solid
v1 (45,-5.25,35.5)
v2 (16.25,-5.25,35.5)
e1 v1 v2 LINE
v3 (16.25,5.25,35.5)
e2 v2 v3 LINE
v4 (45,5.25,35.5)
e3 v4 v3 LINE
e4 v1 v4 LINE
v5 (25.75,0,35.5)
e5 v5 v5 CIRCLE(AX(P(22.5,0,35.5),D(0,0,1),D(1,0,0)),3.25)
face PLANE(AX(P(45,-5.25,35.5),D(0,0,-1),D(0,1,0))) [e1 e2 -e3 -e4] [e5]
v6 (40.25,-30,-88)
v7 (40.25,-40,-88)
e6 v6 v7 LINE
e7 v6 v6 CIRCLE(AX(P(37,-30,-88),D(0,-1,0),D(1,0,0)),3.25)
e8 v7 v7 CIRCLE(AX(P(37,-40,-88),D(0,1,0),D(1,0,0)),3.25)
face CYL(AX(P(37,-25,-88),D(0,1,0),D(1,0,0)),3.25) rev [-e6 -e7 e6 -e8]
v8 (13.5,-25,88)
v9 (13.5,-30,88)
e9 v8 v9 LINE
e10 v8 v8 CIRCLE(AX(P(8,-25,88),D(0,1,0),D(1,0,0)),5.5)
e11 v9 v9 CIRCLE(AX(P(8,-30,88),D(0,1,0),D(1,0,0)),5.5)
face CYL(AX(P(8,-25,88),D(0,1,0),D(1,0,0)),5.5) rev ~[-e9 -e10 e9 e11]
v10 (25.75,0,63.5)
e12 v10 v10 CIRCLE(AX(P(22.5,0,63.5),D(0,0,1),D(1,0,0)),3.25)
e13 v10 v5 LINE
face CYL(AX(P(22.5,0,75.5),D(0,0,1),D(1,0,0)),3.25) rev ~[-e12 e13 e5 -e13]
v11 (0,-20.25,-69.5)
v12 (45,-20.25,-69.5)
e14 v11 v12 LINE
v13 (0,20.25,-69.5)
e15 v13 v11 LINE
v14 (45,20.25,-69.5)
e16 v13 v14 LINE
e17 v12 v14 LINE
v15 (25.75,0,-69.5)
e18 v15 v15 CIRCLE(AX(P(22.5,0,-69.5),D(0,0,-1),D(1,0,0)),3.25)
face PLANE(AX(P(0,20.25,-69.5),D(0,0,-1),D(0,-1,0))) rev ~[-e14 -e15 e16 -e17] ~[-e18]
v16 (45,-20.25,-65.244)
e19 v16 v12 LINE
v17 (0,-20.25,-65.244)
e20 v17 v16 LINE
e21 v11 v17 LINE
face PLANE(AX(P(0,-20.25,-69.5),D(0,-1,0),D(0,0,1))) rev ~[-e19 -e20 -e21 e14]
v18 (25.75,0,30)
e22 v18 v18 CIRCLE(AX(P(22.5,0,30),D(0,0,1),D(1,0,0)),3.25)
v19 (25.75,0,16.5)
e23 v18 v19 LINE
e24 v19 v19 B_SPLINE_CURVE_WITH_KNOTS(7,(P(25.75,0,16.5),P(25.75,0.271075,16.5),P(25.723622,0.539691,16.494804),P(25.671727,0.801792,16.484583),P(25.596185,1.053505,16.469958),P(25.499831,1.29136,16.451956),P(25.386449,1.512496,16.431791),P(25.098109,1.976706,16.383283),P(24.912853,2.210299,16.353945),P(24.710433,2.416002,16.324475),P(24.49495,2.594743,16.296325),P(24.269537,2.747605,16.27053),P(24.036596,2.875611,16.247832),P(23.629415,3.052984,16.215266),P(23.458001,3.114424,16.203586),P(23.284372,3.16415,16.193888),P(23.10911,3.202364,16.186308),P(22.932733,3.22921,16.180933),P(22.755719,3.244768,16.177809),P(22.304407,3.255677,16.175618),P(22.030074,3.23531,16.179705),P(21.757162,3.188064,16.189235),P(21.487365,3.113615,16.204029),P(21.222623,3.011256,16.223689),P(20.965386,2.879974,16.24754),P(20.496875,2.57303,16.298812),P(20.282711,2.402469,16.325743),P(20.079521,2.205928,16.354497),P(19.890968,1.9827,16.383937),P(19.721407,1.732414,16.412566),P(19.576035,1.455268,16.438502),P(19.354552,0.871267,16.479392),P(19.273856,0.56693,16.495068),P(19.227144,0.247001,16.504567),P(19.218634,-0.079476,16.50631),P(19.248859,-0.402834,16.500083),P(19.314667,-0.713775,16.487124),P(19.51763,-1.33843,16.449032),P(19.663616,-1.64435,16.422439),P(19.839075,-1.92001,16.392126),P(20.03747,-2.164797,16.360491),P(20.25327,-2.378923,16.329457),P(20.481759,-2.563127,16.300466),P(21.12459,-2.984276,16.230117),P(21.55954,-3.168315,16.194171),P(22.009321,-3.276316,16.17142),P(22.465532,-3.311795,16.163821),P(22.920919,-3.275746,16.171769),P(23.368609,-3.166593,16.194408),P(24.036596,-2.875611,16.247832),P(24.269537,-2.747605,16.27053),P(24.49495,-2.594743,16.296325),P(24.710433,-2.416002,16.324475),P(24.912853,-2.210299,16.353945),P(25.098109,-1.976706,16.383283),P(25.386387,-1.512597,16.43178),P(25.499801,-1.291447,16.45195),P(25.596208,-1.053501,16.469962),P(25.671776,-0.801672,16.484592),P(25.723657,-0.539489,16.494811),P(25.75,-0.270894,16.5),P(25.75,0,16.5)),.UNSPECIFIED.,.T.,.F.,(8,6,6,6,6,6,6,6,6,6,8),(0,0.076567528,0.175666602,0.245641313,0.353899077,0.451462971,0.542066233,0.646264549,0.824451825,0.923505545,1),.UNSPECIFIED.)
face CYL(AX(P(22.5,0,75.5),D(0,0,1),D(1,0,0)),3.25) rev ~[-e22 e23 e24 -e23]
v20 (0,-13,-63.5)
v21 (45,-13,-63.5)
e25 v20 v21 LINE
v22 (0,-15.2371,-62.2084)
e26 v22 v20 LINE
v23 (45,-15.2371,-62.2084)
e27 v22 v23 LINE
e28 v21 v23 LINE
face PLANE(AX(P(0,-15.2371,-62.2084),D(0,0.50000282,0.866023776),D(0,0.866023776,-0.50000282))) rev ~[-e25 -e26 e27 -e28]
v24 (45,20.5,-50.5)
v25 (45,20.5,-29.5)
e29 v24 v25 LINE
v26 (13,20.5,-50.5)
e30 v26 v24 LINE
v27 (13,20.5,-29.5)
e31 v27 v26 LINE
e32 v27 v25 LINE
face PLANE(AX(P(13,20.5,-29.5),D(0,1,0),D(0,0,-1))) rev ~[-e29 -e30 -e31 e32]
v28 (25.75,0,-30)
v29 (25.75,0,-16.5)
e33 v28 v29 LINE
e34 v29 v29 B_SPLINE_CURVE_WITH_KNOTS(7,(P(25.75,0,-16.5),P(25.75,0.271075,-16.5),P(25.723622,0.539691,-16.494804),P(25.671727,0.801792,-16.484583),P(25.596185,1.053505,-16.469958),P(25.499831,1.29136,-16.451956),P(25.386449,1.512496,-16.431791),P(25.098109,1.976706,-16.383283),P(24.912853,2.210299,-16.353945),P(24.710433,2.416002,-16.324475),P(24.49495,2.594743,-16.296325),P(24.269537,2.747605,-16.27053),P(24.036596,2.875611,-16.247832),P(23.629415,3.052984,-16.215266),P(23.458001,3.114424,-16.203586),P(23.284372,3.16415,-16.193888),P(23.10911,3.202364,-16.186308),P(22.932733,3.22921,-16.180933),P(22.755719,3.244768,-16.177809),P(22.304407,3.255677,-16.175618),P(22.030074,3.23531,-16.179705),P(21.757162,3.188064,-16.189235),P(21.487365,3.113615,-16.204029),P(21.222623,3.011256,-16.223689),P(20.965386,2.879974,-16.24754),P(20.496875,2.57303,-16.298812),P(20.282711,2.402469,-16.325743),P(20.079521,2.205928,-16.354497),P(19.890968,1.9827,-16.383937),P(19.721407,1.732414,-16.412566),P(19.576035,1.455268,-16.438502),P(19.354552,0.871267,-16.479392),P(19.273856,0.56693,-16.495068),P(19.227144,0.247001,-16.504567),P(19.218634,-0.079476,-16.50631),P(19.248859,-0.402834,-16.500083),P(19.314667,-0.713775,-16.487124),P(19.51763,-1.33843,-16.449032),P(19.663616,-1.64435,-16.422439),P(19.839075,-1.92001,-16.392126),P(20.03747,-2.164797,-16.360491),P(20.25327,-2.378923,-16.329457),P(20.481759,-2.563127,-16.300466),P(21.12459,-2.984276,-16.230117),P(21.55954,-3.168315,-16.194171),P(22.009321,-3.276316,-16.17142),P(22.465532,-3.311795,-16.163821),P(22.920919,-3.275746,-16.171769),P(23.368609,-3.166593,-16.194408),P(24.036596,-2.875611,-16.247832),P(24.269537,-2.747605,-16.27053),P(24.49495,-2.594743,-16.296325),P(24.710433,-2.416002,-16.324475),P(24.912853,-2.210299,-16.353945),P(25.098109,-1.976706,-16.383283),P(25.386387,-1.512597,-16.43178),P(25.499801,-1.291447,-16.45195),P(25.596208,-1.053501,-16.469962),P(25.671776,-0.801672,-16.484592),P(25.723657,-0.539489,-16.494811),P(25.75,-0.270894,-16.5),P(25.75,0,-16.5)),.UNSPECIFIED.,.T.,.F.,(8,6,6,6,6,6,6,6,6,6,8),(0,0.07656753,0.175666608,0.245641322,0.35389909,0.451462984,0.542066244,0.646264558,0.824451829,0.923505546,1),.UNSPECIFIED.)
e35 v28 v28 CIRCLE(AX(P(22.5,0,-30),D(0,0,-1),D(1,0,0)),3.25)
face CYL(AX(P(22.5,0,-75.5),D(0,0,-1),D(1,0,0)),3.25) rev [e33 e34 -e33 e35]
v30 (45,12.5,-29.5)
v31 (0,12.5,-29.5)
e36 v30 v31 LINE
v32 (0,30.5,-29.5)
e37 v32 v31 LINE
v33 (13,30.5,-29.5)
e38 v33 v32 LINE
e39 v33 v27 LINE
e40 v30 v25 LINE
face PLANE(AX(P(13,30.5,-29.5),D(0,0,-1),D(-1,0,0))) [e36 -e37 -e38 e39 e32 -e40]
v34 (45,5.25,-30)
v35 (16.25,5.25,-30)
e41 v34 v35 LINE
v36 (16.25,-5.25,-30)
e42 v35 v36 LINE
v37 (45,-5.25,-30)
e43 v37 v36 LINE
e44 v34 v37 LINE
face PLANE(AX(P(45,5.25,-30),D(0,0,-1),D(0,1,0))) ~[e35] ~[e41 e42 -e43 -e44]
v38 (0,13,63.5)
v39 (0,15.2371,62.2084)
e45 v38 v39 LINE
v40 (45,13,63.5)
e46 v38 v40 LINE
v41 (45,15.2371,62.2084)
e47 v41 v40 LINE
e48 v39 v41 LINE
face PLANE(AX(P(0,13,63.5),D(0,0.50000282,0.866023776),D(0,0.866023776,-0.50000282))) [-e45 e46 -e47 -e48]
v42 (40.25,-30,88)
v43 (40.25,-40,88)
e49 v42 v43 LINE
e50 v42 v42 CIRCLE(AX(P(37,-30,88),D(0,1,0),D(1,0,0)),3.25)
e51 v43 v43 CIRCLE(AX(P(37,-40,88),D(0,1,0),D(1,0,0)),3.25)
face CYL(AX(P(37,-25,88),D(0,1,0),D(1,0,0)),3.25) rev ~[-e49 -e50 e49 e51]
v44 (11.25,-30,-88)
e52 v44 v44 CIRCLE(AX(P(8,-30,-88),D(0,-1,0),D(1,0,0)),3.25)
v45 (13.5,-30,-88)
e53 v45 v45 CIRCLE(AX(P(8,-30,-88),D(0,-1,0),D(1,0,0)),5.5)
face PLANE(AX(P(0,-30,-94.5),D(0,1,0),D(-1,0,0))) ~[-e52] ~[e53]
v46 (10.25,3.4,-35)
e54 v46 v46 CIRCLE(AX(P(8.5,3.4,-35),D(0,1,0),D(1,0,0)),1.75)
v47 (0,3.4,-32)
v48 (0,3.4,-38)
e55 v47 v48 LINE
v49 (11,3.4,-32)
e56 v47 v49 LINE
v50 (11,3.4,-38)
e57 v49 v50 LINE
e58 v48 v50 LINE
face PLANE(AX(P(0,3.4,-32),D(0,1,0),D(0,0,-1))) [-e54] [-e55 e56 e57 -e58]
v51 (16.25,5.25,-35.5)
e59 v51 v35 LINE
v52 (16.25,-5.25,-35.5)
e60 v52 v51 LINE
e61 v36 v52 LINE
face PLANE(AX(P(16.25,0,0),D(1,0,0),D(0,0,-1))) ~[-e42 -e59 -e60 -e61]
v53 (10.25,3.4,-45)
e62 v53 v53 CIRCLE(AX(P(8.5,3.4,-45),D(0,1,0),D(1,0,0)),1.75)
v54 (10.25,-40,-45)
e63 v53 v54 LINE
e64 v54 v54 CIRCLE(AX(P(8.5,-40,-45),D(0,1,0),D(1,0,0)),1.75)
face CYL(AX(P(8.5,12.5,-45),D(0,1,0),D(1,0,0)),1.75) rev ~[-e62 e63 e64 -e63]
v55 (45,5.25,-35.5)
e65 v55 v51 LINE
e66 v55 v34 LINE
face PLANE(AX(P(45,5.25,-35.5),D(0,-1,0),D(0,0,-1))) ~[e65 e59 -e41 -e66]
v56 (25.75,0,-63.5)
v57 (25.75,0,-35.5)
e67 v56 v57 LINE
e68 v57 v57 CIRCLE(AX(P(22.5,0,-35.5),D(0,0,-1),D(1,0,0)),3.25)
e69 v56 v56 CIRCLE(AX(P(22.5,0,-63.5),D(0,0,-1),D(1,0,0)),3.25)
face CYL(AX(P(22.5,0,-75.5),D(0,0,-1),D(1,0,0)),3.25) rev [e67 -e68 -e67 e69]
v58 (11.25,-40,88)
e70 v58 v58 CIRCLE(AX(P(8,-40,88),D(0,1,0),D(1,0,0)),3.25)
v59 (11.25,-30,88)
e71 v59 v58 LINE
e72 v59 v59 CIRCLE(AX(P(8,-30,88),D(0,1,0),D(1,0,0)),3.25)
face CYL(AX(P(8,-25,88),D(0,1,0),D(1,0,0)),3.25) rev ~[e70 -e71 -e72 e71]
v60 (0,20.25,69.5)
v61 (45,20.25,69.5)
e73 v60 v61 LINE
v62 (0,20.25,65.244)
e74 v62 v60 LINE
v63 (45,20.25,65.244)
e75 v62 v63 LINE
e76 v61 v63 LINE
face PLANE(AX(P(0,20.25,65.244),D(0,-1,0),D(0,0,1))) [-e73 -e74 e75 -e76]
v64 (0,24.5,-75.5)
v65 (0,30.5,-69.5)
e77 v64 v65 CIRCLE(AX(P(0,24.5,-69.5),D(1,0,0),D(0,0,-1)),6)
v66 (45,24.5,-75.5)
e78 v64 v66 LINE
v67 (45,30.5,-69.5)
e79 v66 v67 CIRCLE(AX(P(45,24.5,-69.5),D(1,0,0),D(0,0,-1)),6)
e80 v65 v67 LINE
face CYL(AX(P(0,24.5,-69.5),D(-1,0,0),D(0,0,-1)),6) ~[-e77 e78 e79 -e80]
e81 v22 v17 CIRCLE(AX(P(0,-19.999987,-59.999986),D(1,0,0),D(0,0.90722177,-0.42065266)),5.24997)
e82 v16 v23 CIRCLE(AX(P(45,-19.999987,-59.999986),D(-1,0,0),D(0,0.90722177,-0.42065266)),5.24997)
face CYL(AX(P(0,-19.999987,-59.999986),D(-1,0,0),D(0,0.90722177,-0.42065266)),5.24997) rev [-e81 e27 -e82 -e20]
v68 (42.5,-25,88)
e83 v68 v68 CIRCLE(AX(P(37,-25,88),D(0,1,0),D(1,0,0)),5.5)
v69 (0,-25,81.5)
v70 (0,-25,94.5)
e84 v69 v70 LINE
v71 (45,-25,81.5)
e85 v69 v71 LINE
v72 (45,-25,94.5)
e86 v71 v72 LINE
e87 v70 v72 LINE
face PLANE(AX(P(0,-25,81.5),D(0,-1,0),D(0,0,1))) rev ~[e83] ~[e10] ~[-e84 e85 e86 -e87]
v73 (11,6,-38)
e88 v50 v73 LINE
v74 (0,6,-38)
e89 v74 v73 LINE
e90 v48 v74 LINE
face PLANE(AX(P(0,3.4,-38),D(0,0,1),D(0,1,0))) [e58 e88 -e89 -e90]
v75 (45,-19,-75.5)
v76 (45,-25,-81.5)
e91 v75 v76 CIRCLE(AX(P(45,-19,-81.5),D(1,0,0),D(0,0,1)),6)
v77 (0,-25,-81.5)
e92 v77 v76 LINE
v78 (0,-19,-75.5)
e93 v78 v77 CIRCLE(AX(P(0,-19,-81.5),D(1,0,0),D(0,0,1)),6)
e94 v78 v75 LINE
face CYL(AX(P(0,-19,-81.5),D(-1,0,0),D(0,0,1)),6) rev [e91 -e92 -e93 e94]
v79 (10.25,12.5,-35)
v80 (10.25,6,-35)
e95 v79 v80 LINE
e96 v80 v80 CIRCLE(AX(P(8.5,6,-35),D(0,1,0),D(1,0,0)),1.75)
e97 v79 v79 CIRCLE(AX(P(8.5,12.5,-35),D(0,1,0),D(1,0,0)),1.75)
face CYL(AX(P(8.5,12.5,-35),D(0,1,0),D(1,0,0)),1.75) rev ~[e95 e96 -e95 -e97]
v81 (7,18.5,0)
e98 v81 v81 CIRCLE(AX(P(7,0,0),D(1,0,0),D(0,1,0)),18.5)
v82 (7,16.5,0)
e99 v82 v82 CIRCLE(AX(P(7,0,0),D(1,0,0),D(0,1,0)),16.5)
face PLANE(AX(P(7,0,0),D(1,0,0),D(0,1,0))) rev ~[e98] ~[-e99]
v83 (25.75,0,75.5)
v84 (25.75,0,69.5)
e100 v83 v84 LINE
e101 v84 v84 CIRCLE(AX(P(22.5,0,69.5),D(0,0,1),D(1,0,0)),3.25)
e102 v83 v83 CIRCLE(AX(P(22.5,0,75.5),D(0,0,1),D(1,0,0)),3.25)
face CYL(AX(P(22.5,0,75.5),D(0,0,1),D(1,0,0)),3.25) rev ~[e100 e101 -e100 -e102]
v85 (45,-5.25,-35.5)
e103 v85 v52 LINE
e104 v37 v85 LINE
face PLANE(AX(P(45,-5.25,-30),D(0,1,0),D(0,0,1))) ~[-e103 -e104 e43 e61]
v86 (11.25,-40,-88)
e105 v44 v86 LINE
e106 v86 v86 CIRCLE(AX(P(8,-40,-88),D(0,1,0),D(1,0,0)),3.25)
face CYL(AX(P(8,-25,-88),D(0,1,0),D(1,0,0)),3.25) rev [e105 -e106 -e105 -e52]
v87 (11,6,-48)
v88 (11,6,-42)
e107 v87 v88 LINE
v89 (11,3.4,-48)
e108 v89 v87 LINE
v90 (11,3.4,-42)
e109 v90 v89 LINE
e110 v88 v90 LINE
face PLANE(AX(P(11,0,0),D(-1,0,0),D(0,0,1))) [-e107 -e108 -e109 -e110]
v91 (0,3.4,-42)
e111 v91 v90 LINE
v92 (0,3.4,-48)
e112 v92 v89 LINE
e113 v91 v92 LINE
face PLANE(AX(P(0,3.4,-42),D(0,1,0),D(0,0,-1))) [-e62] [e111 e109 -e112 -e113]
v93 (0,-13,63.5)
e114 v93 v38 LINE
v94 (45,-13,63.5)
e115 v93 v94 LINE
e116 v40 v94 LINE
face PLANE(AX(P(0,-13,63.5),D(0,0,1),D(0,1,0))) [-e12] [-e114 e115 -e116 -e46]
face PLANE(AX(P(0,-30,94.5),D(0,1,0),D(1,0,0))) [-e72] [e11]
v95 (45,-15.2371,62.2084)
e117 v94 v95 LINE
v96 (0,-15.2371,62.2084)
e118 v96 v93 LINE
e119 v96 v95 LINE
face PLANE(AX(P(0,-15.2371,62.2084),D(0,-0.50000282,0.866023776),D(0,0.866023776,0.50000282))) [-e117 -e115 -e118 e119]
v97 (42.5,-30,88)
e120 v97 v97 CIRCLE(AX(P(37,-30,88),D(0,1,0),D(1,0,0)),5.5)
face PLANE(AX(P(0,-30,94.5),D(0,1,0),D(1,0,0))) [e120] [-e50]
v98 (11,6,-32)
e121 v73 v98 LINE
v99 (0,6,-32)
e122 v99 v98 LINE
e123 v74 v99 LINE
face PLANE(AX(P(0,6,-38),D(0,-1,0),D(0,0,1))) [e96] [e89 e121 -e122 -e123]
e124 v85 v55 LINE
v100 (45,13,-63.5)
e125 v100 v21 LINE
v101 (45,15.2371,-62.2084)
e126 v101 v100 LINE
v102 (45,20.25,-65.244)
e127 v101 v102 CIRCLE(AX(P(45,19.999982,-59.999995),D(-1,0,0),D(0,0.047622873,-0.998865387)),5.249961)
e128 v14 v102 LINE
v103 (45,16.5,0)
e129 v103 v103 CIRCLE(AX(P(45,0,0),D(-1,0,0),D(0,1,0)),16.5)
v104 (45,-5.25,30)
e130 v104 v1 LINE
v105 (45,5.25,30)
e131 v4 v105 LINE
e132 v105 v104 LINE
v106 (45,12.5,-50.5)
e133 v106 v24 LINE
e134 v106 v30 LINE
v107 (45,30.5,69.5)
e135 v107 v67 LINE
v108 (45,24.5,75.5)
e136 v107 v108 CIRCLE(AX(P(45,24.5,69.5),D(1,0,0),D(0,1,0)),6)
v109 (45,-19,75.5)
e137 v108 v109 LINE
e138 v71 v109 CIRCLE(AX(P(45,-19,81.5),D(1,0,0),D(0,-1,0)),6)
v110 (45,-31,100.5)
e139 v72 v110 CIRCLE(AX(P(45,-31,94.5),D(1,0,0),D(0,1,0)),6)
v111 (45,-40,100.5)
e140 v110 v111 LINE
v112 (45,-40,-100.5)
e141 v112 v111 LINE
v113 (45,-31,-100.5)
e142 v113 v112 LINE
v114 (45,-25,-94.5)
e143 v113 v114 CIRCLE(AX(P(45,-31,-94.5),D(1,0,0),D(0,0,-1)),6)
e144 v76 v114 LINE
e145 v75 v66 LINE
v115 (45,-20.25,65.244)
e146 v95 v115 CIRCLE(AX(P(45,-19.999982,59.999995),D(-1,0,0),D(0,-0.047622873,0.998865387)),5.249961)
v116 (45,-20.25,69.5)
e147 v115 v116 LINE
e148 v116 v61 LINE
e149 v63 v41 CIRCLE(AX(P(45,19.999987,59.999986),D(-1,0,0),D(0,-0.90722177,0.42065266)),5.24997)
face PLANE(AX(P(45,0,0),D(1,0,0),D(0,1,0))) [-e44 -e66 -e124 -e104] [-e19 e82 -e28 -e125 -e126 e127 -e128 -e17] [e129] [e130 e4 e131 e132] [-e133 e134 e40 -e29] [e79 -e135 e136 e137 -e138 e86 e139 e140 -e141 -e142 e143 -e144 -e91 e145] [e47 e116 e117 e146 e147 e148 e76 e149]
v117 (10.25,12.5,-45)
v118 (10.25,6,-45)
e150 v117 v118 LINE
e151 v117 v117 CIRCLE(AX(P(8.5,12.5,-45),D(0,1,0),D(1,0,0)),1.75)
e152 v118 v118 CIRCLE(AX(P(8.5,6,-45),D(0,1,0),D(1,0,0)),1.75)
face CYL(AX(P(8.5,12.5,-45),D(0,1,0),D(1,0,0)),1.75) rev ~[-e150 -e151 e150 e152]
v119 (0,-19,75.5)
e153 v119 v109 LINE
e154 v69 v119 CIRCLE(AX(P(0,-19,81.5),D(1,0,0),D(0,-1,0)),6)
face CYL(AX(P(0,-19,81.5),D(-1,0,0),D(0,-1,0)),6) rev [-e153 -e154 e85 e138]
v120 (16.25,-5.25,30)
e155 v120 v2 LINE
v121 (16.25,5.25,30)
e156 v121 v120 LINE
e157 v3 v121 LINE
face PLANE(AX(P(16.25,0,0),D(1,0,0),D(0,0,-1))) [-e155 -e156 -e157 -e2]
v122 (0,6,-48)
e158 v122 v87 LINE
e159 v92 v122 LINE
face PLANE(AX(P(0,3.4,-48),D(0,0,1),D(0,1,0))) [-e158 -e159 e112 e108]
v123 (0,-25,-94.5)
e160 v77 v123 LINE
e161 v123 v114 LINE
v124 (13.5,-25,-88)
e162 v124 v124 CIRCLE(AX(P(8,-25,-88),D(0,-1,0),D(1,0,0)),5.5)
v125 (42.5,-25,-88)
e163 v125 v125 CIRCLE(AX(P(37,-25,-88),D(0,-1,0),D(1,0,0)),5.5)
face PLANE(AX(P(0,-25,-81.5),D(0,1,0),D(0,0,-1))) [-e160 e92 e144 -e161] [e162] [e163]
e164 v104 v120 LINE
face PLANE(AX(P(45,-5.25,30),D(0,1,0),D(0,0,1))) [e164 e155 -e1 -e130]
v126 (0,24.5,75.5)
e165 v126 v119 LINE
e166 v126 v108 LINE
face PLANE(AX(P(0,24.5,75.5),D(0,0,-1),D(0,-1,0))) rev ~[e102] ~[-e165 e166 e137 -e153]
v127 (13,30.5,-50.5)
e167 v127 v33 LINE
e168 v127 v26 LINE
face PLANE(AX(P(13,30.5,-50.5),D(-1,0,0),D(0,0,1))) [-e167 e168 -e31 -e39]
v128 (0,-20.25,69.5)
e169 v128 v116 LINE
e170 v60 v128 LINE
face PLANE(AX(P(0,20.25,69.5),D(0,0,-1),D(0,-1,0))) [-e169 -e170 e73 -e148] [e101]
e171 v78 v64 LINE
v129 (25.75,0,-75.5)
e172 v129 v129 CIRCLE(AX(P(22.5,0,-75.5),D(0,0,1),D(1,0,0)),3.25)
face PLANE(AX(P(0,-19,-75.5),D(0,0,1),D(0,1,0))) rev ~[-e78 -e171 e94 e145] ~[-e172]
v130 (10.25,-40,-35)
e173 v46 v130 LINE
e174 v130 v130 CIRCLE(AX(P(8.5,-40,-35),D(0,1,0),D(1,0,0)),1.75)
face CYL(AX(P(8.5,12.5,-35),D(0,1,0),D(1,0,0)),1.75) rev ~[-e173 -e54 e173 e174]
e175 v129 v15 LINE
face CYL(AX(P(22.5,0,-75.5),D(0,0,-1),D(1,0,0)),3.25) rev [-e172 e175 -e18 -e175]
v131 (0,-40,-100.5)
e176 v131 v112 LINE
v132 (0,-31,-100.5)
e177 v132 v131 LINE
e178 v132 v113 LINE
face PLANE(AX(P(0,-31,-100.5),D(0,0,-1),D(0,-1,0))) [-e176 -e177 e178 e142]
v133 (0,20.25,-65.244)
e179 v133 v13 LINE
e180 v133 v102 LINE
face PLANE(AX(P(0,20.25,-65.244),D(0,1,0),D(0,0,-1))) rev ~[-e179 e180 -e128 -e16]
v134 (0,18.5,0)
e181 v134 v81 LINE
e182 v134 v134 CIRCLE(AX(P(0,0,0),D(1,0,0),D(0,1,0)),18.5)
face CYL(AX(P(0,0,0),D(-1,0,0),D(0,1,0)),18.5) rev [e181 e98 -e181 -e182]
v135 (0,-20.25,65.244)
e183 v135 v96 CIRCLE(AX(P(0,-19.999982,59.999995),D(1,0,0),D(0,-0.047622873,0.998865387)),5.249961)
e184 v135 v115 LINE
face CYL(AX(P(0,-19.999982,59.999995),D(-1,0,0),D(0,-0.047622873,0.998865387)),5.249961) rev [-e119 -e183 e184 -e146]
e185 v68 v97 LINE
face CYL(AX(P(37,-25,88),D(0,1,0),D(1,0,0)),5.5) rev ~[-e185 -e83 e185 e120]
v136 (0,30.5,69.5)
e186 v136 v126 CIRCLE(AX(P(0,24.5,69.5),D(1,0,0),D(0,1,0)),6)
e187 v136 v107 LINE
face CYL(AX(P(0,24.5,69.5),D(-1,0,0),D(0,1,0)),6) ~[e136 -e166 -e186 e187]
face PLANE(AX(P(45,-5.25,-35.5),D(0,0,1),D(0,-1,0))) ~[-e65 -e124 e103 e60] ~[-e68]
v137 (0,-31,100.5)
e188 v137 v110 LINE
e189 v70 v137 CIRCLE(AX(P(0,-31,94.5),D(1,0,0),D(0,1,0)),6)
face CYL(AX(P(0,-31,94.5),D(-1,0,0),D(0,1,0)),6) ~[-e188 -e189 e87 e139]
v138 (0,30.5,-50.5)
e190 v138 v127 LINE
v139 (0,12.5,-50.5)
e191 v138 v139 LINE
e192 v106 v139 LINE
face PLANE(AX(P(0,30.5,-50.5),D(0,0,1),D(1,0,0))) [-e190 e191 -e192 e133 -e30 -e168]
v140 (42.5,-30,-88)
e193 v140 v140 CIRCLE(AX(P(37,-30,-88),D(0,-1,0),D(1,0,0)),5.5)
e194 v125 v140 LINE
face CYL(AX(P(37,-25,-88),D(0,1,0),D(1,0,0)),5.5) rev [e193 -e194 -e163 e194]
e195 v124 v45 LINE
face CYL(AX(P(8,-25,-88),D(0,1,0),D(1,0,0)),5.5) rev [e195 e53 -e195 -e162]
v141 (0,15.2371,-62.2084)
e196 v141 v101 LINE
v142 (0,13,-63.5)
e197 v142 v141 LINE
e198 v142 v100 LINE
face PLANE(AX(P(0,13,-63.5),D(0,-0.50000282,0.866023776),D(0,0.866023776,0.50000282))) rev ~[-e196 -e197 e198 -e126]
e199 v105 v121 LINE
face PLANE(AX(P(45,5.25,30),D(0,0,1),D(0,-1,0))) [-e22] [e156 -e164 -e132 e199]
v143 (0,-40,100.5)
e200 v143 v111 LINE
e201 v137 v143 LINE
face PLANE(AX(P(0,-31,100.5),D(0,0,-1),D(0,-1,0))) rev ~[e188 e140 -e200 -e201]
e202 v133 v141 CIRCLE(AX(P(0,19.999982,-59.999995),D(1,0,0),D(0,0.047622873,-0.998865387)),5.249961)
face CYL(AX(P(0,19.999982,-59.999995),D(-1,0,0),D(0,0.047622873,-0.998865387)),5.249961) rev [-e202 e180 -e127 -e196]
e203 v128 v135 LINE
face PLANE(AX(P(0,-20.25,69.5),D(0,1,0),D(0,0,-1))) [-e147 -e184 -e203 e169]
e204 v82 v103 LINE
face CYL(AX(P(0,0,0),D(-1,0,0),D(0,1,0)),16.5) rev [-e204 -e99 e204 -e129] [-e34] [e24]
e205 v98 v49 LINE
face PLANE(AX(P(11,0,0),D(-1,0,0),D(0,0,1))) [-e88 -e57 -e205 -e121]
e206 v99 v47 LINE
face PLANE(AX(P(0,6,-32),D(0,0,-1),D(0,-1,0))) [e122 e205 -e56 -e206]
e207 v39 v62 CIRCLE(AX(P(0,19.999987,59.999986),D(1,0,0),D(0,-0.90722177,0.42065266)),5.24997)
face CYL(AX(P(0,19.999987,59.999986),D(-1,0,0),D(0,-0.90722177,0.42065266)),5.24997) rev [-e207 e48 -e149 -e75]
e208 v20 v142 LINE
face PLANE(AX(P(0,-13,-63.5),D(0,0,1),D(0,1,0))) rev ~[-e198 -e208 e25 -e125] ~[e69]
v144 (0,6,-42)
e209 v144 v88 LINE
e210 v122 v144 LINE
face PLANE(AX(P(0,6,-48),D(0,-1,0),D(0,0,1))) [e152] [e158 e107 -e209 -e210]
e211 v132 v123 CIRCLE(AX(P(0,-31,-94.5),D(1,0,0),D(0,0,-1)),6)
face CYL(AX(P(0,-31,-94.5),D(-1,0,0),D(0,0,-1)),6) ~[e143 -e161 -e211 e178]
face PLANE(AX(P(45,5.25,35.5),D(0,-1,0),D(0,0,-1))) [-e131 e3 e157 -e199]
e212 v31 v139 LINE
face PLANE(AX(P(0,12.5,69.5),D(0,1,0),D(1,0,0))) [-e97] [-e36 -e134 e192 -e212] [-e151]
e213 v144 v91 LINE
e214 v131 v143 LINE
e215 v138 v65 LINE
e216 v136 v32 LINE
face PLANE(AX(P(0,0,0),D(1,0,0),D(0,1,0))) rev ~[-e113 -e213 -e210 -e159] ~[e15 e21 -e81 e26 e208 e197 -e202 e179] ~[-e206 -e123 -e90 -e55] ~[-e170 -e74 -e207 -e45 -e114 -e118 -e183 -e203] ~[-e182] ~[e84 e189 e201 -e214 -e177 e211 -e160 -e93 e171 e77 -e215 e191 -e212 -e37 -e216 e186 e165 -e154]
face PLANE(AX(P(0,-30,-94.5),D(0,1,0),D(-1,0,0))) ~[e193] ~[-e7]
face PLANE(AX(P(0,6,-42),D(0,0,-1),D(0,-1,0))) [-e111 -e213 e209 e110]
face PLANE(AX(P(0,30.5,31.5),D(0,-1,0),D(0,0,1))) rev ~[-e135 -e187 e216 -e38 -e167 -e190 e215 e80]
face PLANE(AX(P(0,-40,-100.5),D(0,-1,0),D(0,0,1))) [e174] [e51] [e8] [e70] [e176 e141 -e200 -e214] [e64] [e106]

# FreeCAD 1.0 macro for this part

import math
import FreeCAD as App
import Part
import Sketcher
Q = App.Units.Quantity

doc = App.newDocument("Part")
body = doc.addObject("PartDesign::Body", "Body")

# Sketch on YZ plane
sketch1 = body.newObject("Sketcher::SketchObject", "Sketch")
sketch1.AttachmentSupport = (doc.getObject("YZ_Plane"), [""])
sketch1.MapMode = "FlatFace"
sketch1.addGeometry(Part.ArcOfCircle(Part.Circle(App.Vector(24, 70, 0), App.Vector(0, 0, 1), 6), math.radians(0), math.radians(90)), False)
sketch1.addGeometry(Part.LineSegment(App.Vector(24, 76, 0), App.Vector(-19, 76, 0)), False)
sketch1.addGeometry(Part.ArcOfCircle(Part.Circle(App.Vector(-19, 82, 0), App.Vector(0, 0, 1), 6), math.radians(180), math.radians(270)), False)
sketch1.addGeometry(Part.LineSegment(App.Vector(-25, 82, 0), App.Vector(-25, 94, 0)), False)
sketch1.addGeometry(Part.ArcOfCircle(Part.Circle(App.Vector(-31, 94, 0), App.Vector(0, 0, 1), 6), math.radians(0), math.radians(90)), False)
sketch1.addGeometry(Part.LineSegment(App.Vector(-31, 100, 0), App.Vector(-40, 100, 0)), False)
sketch1.addGeometry(Part.LineSegment(App.Vector(-40, 100, 0), App.Vector(-40, -100, 0)), False)
sketch1.addGeometry(Part.LineSegment(App.Vector(-40, -100, 0), App.Vector(-31, -100, 0)), False)
sketch1.addGeometry(Part.ArcOfCircle(Part.Circle(App.Vector(-31, -94, 0), App.Vector(0, 0, 1), 6), math.radians(-90), math.radians(0)), False)
sketch1.addGeometry(Part.LineSegment(App.Vector(-25, -94, 0), App.Vector(-25, -82, 0)), False)
sketch1.addGeometry(Part.ArcOfCircle(Part.Circle(App.Vector(-19, -82, 0), App.Vector(0, 0, 1), 6), math.radians(90), math.radians(180)), False)
sketch1.addGeometry(Part.LineSegment(App.Vector(-19, -76, 0), App.Vector(24, -76, 0)), False)
sketch1.addGeometry(Part.ArcOfCircle(Part.Circle(App.Vector(24, -70, 0), App.Vector(0, 0, 1), 6), math.radians(-90), math.radians(0)), False)
sketch1.addGeometry(Part.LineSegment(App.Vector(30, -70, 0), App.Vector(30, 70, 0)), False)
sketch1.addConstraint(Sketcher.Constraint("Tangent", 0, 2, 1, 1))
sketch1.addConstraint(Sketcher.Constraint("Tangent", 1, 2, 2, 2))
sketch1.addConstraint(Sketcher.Constraint("Tangent", 2, 1, 3, 1))
sketch1.addConstraint(Sketcher.Constraint("Tangent", 3, 2, 4, 1))
sketch1.addConstraint(Sketcher.Constraint("Tangent", 4, 2, 5, 1))
sketch1.addConstraint(Sketcher.Constraint("Coincident", 5, 2, 6, 1))
sketch1.addConstraint(Sketcher.Constraint("Coincident", 6, 2, 7, 1))
sketch1.addConstraint(Sketcher.Constraint("Tangent", 7, 2, 8, 1))
sketch1.addConstraint(Sketcher.Constraint("Tangent", 8, 2, 9, 1))
sketch1.addConstraint(Sketcher.Constraint("Tangent", 9, 2, 10, 2))
sketch1.addConstraint(Sketcher.Constraint("Tangent", 10, 1, 11, 1))
sketch1.addConstraint(Sketcher.Constraint("Tangent", 11, 2, 12, 1))
sketch1.addConstraint(Sketcher.Constraint("Tangent", 12, 2, 13, 1))
sketch1.addConstraint(Sketcher.Constraint("Tangent", 13, 2, 0, 1))
sketch1.addConstraint(Sketcher.Constraint("Horizontal", 1))
sketch1.addConstraint(Sketcher.Constraint("Vertical", 3))
sketch1.addConstraint(Sketcher.Constraint("Horizontal", 5))
sketch1.addConstraint(Sketcher.Constraint("Vertical", 6))
sketch1.addConstraint(Sketcher.Constraint("Horizontal", 7))
sketch1.addConstraint(Sketcher.Constraint("Vertical", 9))
sketch1.addConstraint(Sketcher.Constraint("Horizontal", 11))
sketch1.addConstraint(Sketcher.Constraint("Vertical", 13))
sketch1.addConstraint(Sketcher.Constraint("Equal", 0, 2))
sketch1.addConstraint(Sketcher.Constraint("Equal", 2, 4))
sketch1.addConstraint(Sketcher.Constraint("Equal", 4, 8))
sketch1.addConstraint(Sketcher.Constraint("Equal", 8, 10))
sketch1.addConstraint(Sketcher.Constraint("Equal", 10, 12))
sketch1.addConstraint(Sketcher.Constraint("Symmetric", 4, 3, 8, 3, -1))
sketch1.addConstraint(Sketcher.Constraint("Equal", 3, 9))
sketch1.addConstraint(Sketcher.Constraint("Radius", 0, Q("6 mm")))
sketch1.addConstraint(Sketcher.Constraint("DistanceY", 3, 1, 3, 2, Q("13 mm")))
sketch1.addConstraint(Sketcher.Constraint("DistanceX", 2, 1, -1, 1, Q("25 mm")))
sketch1.addConstraint(Sketcher.Constraint("DistanceX", 5, 2, -1, 1, Q("40 mm")))
sketch1.addConstraint(Sketcher.Constraint("DistanceY", 6, 2, 6, 1, Q("201 mm")))
sketch1.addConstraint(Sketcher.Constraint("DistanceX", 1, 2, 1, 1, Q("43.5 mm")))
pad1 = body.newObject("PartDesign::Pad", "Pad")
pad1.Profile = sketch1
pad1.Length = 45

# Sketch on YZ plane
sketch2 = body.newObject("Sketcher::SketchObject", "Sketch001")
sketch2.AttachmentSupport = (doc.getObject("YZ_Plane"), [""])
sketch2.MapMode = "FlatFace"
sketch2.addGeometry(Part.Circle(App.Vector(0, 0, 0), App.Vector(0, 0, 1), 16.5), False)
sketch2.addGeometry(Part.LineSegment(App.Vector(-20.2, 69.5, 0), App.Vector(-20.2, 65.2, 0)), False)
sketch2.addGeometry(Part.ArcOfCircle(Part.Circle(App.Vector(-20, 60, 0), App.Vector(0, 0, 1), 5.2), math.radians(93), math.radians(385)), False)
sketch2.addGeometry(Part.LineSegment(App.Vector(-15.2, 62.2, 0), App.Vector(-13, 63.5, 0)), False)
sketch2.addGeometry(Part.LineSegment(App.Vector(-13, 63.5, 0), App.Vector(13, 63.5, 0)), False)
sketch2.addGeometry(Part.LineSegment(App.Vector(13, 63.5, 0), App.Vector(15.2, 62.2, 0)), False)
sketch2.addGeometry(Part.ArcOfCircle(Part.Circle(App.Vector(20, 60, 0), App.Vector(0, 0, 1), 5.2), math.radians(155), math.radians(447)), False)
sketch2.addGeometry(Part.LineSegment(App.Vector(20.2, 65.2, 0), App.Vector(20.2, 69.5, 0)), False)
sketch2.addGeometry(Part.LineSegment(App.Vector(20.2, 69.5, 0), App.Vector(-20.2, 69.5, 0)), False)
sketch2.addGeometry(Part.LineSegment(App.Vector(-13, -63.5, 0), App.Vector(-15.2, -62.2, 0)), False)
sketch2.addGeometry(Part.ArcOfCircle(Part.Circle(App.Vector(-20, -60, 0), App.Vector(0, 0, 1), 5.2), math.radians(-25), math.radians(267)), False)
sketch2.addGeometry(Part.LineSegment(App.Vector(-20.2, -65.2, 0), App.Vector(-20.2, -69.5, 0)), False)
sketch2.addGeometry(Part.LineSegment(App.Vector(-20.2, -69.5, 0), App.Vector(20.2, -69.5, 0)), False)
sketch2.addGeometry(Part.LineSegment(App.Vector(20.2, -69.5, 0), App.Vector(20.2, -65.2, 0)), False)
sketch2.addGeometry(Part.ArcOfCircle(Part.Circle(App.Vector(20, -60, 0), App.Vector(0, 0, 1), 5.2), math.radians(-87), math.radians(205)), False)
sketch2.addGeometry(Part.LineSegment(App.Vector(15.2, -62.2, 0), App.Vector(13, -63.5, 0)), False)
sketch2.addGeometry(Part.LineSegment(App.Vector(13, -63.5, 0), App.Vector(-13, -63.5, 0)), False)
sketch2.addConstraint(Sketcher.Constraint("Coincident", 1, 2, 2, 1))
sketch2.addConstraint(Sketcher.Constraint("Coincident", 2, 2, 3, 1))
sketch2.addConstraint(Sketcher.Constraint("Coincident", 3, 2, 4, 1))
sketch2.addConstraint(Sketcher.Constraint("Coincident", 4, 2, 5, 1))
sketch2.addConstraint(Sketcher.Constraint("Coincident", 5, 2, 6, 1))
sketch2.addConstraint(Sketcher.Constraint("Coincident", 6, 2, 7, 1))
sketch2.addConstraint(Sketcher.Constraint("Coincident", 7, 2, 8, 1))
sketch2.addConstraint(Sketcher.Constraint("Coincident", 8, 2, 1, 1))
sketch2.addConstraint(Sketcher.Constraint("Coincident", 9, 2, 10, 1))
sketch2.addConstraint(Sketcher.Constraint("Coincident", 10, 2, 11, 1))
sketch2.addConstraint(Sketcher.Constraint("Coincident", 11, 2, 12, 1))
sketch2.addConstraint(Sketcher.Constraint("Coincident", 12, 2, 13, 1))
sketch2.addConstraint(Sketcher.Constraint("Coincident", 13, 2, 14, 1))
sketch2.addConstraint(Sketcher.Constraint("Coincident", 14, 2, 15, 1))
sketch2.addConstraint(Sketcher.Constraint("Coincident", 15, 2, 16, 1))
sketch2.addConstraint(Sketcher.Constraint("Coincident", 16, 2, 9, 1))
sketch2.addConstraint(Sketcher.Constraint("Vertical", 1))
sketch2.addConstraint(Sketcher.Constraint("Horizontal", 4))
sketch2.addConstraint(Sketcher.Constraint("Vertical", 7))
sketch2.addConstraint(Sketcher.Constraint("Horizontal", 8))
sketch2.addConstraint(Sketcher.Constraint("Vertical", 11))
sketch2.addConstraint(Sketcher.Constraint("Horizontal", 12))
sketch2.addConstraint(Sketcher.Constraint("Vertical", 13))
sketch2.addConstraint(Sketcher.Constraint("Horizontal", 16))
sketch2.addConstraint(Sketcher.Constraint("Coincident", 0, 3, -1, 1))
sketch2.addConstraint(Sketcher.Constraint("Equal", 2, 6))
sketch2.addConstraint(Sketcher.Constraint("Equal", 6, 10))
sketch2.addConstraint(Sketcher.Constraint("Equal", 10, 14))
sketch2.addConstraint(Sketcher.Constraint("Symmetric", 6, 3, 10, 3, -1, 1))
sketch2.addConstraint(Sketcher.Constraint("Symmetric", 2, 3, 14, 3, -1, 1))
sketch2.addConstraint(Sketcher.Constraint("Symmetric", 7, 2, 11, 2, -1, 1))
sketch2.addConstraint(Sketcher.Constraint("Symmetric", 3, 2, 15, 2, -1, 1))
sketch2.addConstraint(Sketcher.Constraint("Symmetric", 2, 3, 6, 3, -2))
sketch2.addConstraint(Sketcher.Constraint("Parallel", 5, 9))
sketch2.addConstraint(Sketcher.Constraint("Parallel", 3, 15))
sketch2.addConstraint(Sketcher.Constraint("Horizontal", 2, 2, 5, 2))
sketch2.addConstraint(Sketcher.Constraint("Horizontal", 1, 2, 6, 2))
sketch2.addConstraint(Sketcher.Constraint("Horizontal", 10, 2, 13, 2))
sketch2.addConstraint(Sketcher.Constraint("Horizontal", 9, 2, 14, 2))
sketch2.addConstraint(Sketcher.Constraint("Vertical", 4, 2, 15, 2))
sketch2.addConstraint(Sketcher.Constraint("Diameter", 0, Q("33 mm")))
sketch2.addConstraint(Sketcher.Constraint("DistanceX", 4, 1, 4, 2, Q("26 mm")))
sketch2.addConstraint(Sketcher.Constraint("Angle", 9, Q("149.9998 deg")))
sketch2.addConstraint(Sketcher.Constraint("Radius", 2, Q("5.25 mm")))
sketch2.addConstraint(Sketcher.Constraint("DistanceX", 2, 3, -1, 1, Q("20 mm")))
sketch2.addConstraint(Sketcher.Constraint("DistanceY", -1, 1, 2, 3, Q("60 mm")))
sketch2.addConstraint(Sketcher.Constraint("DistanceY", 4, 2, 7, 2, Q("6 mm")))
sketch2.addConstraint(Sketcher.Constraint("DistanceY", 2, 3, 3, 2, Q("3.5 mm")))
sketch2.addConstraint(Sketcher.Constraint("DistanceX", 1, 2, 2, 3, Q("0.25 mm")))
pocket1 = body.newObject("PartDesign::Pocket", "Pocket")
pocket1.Profile = sketch2
pocket1.Type = "ThroughAll"
pocket1.Reversed = True

# Sketch on YZ plane
sketch3 = body.newObject("Sketcher::SketchObject", "Sketch002")
sketch3.AttachmentSupport = (doc.getObject("YZ_Plane"), [""])
sketch3.MapMode = "FlatFace"
sketch3.addGeometry(Part.Circle(App.Vector(0, 0, 0), App.Vector(0, 0, 1), 18), False)
sketch3.addGeometry(Part.Circle(App.Vector(0, 0, 0), App.Vector(0, 0, 1), 16), False)
sketch3.addConstraint(Sketcher.Constraint("Coincident", 0, 3, -1, 1))
sketch3.addConstraint(Sketcher.Constraint("Coincident", 1, 3, -1, 1))
sketch3.addConstraint(Sketcher.Constraint("Diameter", 0, Q("37 mm")))
sketch3.addConstraint(Sketcher.Constraint("Diameter", 1, Q("33 mm")))
pocket2 = body.newObject("PartDesign::Pocket", "Pocket001")
pocket2.Profile = sketch3
pocket2.Length = 7
pocket2.Reversed = True

# Sketch on XZ plane
sketch4 = body.newObject("Sketcher::SketchObject", "Sketch003")
sketch4.AttachmentSupport = (doc.getObject("XZ_Plane"), [""])
sketch4.MapMode = "FlatFace"
sketch4.AttachmentOffset = App.Placement(App.Vector(0, 0, 25), App.Rotation())
sketch4.addGeometry(Part.Circle(App.Vector(37, 88, 0), App.Vector(0, 0, 1), 3.2), False)
sketch4.addGeometry(Part.Circle(App.Vector(8, 88, 0), App.Vector(0, 0, 1), 3.2), False)
sketch4.addConstraint(Sketcher.Constraint("Equal", 0, 1))
sketch4.addConstraint(Sketcher.Constraint("Horizontal", 0, 3, 1, 3))
sketch4.addConstraint(Sketcher.Constraint("Diameter", 0, Q("6.5 mm")))
sketch4.addConstraint(Sketcher.Constraint("DistanceX", -1, 1, 1, 3, Q("8 mm")))
sketch4.addConstraint(Sketcher.Constraint("DistanceX", -1, 1, 0, 3, Q("37 mm")))
sketch4.addConstraint(Sketcher.Constraint("DistanceY", -1, 1, 0, 3, Q("88 mm")))
pocket3 = body.newObject("PartDesign::Pocket", "Pocket002")
pocket3.Profile = sketch4
pocket3.Type = "ThroughAll"
pocket3.Reversed = True

# Sketch on XZ plane
sketch5 = body.newObject("Sketcher::SketchObject", "Sketch004")
sketch5.AttachmentSupport = (doc.getObject("XZ_Plane"), [""])
sketch5.MapMode = "FlatFace"
sketch5.AttachmentOffset = App.Placement(App.Vector(0, 0, 25), App.Rotation())
sketch5.addGeometry(Part.Circle(App.Vector(37, 88, 0), App.Vector(0, 0, 1), 5.5), False)
sketch5.addGeometry(Part.Circle(App.Vector(37, 88, 0), App.Vector(0, 0, 1), 3.2), False)
sketch5.addGeometry(Part.Circle(App.Vector(8, 88, 0), App.Vector(0, 0, 1), 5.5), False)
sketch5.addGeometry(Part.Circle(App.Vector(8, 88, 0), App.Vector(0, 0, 1), 3.2), False)
sketch5.addConstraint(Sketcher.Constraint("Coincident", 1, 3, 0, 3))
sketch5.addConstraint(Sketcher.Constraint("Coincident", 3, 3, 2, 3))
sketch5.addConstraint(Sketcher.Constraint("Equal", 0, 2))
sketch5.addConstraint(Sketcher.Constraint("Equal", 1, 3))
sketch5.addConstraint(Sketcher.Constraint("Horizontal", 1, 3, 2, 3))
sketch5.addConstraint(Sketcher.Constraint("Diameter", 0, Q("11 mm")))
sketch5.addConstraint(Sketcher.Constraint("Diameter", 1, Q("6.5 mm")))
sketch5.addConstraint(Sketcher.Constraint("DistanceX", -1, 1, 2, 3, Q("8 mm")))
sketch5.addConstraint(Sketcher.Constraint("DistanceX", -1, 1, 0, 3, Q("37 mm")))
sketch5.addConstraint(Sketcher.Constraint("DistanceY", -1, 1, 0, 3, Q("88 mm")))
pocket4 = body.newObject("PartDesign::Pocket", "Pocket003")
pocket4.Profile = sketch5
pocket4.Length = 5
pocket4.Reversed = True

# Sketch on XY plane
sketch6 = body.newObject("Sketcher::SketchObject", "Sketch005")
sketch6.AttachmentSupport = (doc.getObject("XY_Plane"), [""])
sketch6.MapMode = "FlatFace"
sketch6.AttachmentOffset = App.Placement(App.Vector(0, 0, 75.5), App.Rotation())
sketch6.addGeometry(Part.Circle(App.Vector(22.5, 0, 0), App.Vector(0, 0, 1), 3.2), False)
sketch6.addConstraint(Sketcher.Constraint("PointOnObject", 0, 3, -1))
sketch6.addConstraint(Sketcher.Constraint("Diameter", 0, Q("6.5 mm")))
sketch6.addConstraint(Sketcher.Constraint("DistanceX", -1, 1, 0, 3, Q("22.5 mm")))
pocket5 = body.newObject("PartDesign::Pocket", "Pocket004")
pocket5.Profile = sketch6
pocket5.Length = 60

# Sketch on YZ plane
sketch7 = body.newObject("Sketcher::SketchObject", "Sketch006")
sketch7.AttachmentSupport = (doc.getObject("YZ_Plane"), [""])
sketch7.MapMode = "FlatFace"
sketch7.AttachmentOffset = App.Placement(App.Vector(0, 0, 45), App.Rotation())
sketch7.addGeometry(Part.LineSegment(App.Vector(5, 30, 0), App.Vector(5, 36, 0)), False)
sketch7.addGeometry(Part.LineSegment(App.Vector(5, 36, 0), App.Vector(-5, 36, 0)), False)
sketch7.addGeometry(Part.LineSegment(App.Vector(-5, 36, 0), App.Vector(-5, 30, 0)), False)
sketch7.addGeometry(Part.LineSegment(App.Vector(-5, 30, 0), App.Vector(5, 30, 0)), False)
sketch7.addConstraint(Sketcher.Constraint("Coincident", 0, 2, 1, 1))
sketch7.addConstraint(Sketcher.Constraint("Coincident", 1, 2, 2, 1))
sketch7.addConstraint(Sketcher.Constraint("Coincident", 2, 2, 3, 1))
sketch7.addConstraint(Sketcher.Constraint("Coincident", 3, 2, 0, 1))
sketch7.addConstraint(Sketcher.Constraint("Vertical", 0))
sketch7.addConstraint(Sketcher.Constraint("Horizontal", 1))
sketch7.addConstraint(Sketcher.Constraint("Vertical", 2))
sketch7.addConstraint(Sketcher.Constraint("Horizontal", 3))
sketch7.addConstraint(Sketcher.Constraint("DistanceX", 1, 2, 1, 1, Q("10.5 mm")))
sketch7.addConstraint(Sketcher.Constraint("DistanceY", 0, 1, 0, 2, Q("5.5 mm")))
sketch7.addConstraint(Sketcher.Constraint("DistanceX", -1, 1, 0, 2, Q("5.25 mm")))
sketch7.addConstraint(Sketcher.Constraint("DistanceY", -1, 1, 2, 2, Q("30 mm")))
pocket6 = body.newObject("PartDesign::Pocket", "Pocket005")
pocket6.Profile = sketch7
pocket6.Length = 28.75
doc.recompute()

mirrored = body.newObject("PartDesign::Mirrored", "Mirrored")
mirrored.Originals = [pocket6, pocket5, pocket4, pocket3]
mirrored.MirrorPlane = (doc.getObject("XY_Plane"), [""])
body.Tip = mirrored

# Sketch on XZ plane
sketch8 = body.newObject("Sketcher::SketchObject", "Sketch007")
sketch8.AttachmentSupport = (doc.getObject("XZ_Plane"), [""])
sketch8.MapMode = "FlatFace"
sketch8.AttachmentOffset = App.Placement(App.Vector(0, 0, -30.5), App.Rotation())
sketch8.addGeometry(Part.LineSegment(App.Vector(0, -50, 0), App.Vector(0, -30, 0)), False)
sketch8.addGeometry(Part.LineSegment(App.Vector(0, -30, 0), App.Vector(13, -30, 0)), False)
sketch8.addGeometry(Part.LineSegment(App.Vector(13, -30, 0), App.Vector(13, -50, 0)), False)
sketch8.addGeometry(Part.LineSegment(App.Vector(13, -50, 0), App.Vector(0, -50, 0)), False)
sketch8.addConstraint(Sketcher.Constraint("Coincident", 0, 2, 1, 1))
sketch8.addConstraint(Sketcher.Constraint("Coincident", 1, 2, 2, 1))
sketch8.addConstraint(Sketcher.Constraint("Coincident", 2, 2, 3, 1))
sketch8.addConstraint(Sketcher.Constraint("Coincident", 3, 2, 0, 1))
sketch8.addConstraint(Sketcher.Constraint("Vertical", 0))
sketch8.addConstraint(Sketcher.Constraint("Horizontal", 1))
sketch8.addConstraint(Sketcher.Constraint("Vertical", 2))
sketch8.addConstraint(Sketcher.Constraint("Horizontal", 3))
sketch8.addConstraint(Sketcher.Constraint("PointOnObject", 0, 2, -2))
sketch8.addConstraint(Sketcher.Constraint("DistanceX", 1, 1, 1, 2, Q("13 mm")))
sketch8.addConstraint(Sketcher.Constraint("DistanceY", 0, 1, 0, 2, Q("21 mm")))
sketch8.addConstraint(Sketcher.Constraint("DistanceY", 0, 2, -1, 1, Q("29.5 mm")))
pocket7 = body.newObject("PartDesign::Pocket", "Pocket006")
pocket7.Profile = sketch8
pocket7.Length = 18
pocket7.Reversed = True

# Sketch on YZ plane
sketch9 = body.newObject("Sketcher::SketchObject", "Sketch008")
sketch9.AttachmentSupport = (doc.getObject("YZ_Plane"), [""])
sketch9.MapMode = "FlatFace"
sketch9.AttachmentOffset = App.Placement(App.Vector(0, 0, 13), App.Rotation())
sketch9.addGeometry(Part.LineSegment(App.Vector(12, -50, 0), App.Vector(12, -30, 0)), False)
sketch9.addGeometry(Part.LineSegment(App.Vector(12, -30, 0), App.Vector(20, -30, 0)), False)
sketch9.addGeometry(Part.LineSegment(App.Vector(20, -30, 0), App.Vector(20, -50, 0)), False)
sketch9.addGeometry(Part.LineSegment(App.Vector(20, -50, 0), App.Vector(12, -50, 0)), False)
sketch9.addConstraint(Sketcher.Constraint("Coincident", 0, 2, 1, 1))
sketch9.addConstraint(Sketcher.Constraint("Coincident", 1, 2, 2, 1))
sketch9.addConstraint(Sketcher.Constraint("Coincident", 2, 2, 3, 1))
sketch9.addConstraint(Sketcher.Constraint("Coincident", 3, 2, 0, 1))
sketch9.addConstraint(Sketcher.Constraint("Vertical", 0))
sketch9.addConstraint(Sketcher.Constraint("Horizontal", 1))
sketch9.addConstraint(Sketcher.Constraint("Vertical", 2))
sketch9.addConstraint(Sketcher.Constraint("Horizontal", 3))
sketch9.addConstraint(Sketcher.Constraint("DistanceX", 1, 1, 1, 2, Q("8 mm")))
sketch9.addConstraint(Sketcher.Constraint("DistanceY", 0, 1, 0, 2, Q("21 mm")))
sketch9.addConstraint(Sketcher.Constraint("DistanceX", -1, 1, 0, 2, Q("12.5 mm")))
sketch9.addConstraint(Sketcher.Constraint("DistanceY", 0, 2, -1, 1, Q("29.5 mm")))
pocket8 = body.newObject("PartDesign::Pocket", "Pocket007")
pocket8.Profile = sketch9
pocket8.Type = "ThroughAll"
pocket8.Reversed = True

# Sketch on XZ plane
sketch10 = body.newObject("Sketcher::SketchObject", "Sketch009")
sketch10.AttachmentSupport = (doc.getObject("XZ_Plane"), [""])
sketch10.MapMode = "FlatFace"
sketch10.AttachmentOffset = App.Placement(App.Vector(0, 0, -12.5), App.Rotation())
sketch10.addGeometry(Part.Circle(App.Vector(8.5, -45, 0), App.Vector(0, 0, 1), 1.8), False)
sketch10.addGeometry(Part.Circle(App.Vector(8.5, -35, 0), App.Vector(0, 0, 1), 1.8), False)
sketch10.addConstraint(Sketcher.Constraint("Equal", 0, 1))
sketch10.addConstraint(Sketcher.Constraint("Vertical", 0, 3, 1, 3))
sketch10.addConstraint(Sketcher.Constraint("Diameter", 0, Q("3.5 mm")))
sketch10.addConstraint(Sketcher.Constraint("DistanceY", 0, 3, 1, 3, Q("10 mm")))
sketch10.addConstraint(Sketcher.Constraint("DistanceX", -1, 1, 0, 3, Q("8.5 mm")))
sketch10.addConstraint(Sketcher.Constraint("DistanceY", 0, 3, -1, 1, Q("45 mm")))
pocket9 = body.newObject("PartDesign::Pocket", "Pocket008")
pocket9.Profile = sketch10
pocket9.Type = "ThroughAll"
pocket9.Reversed = True

# Sketch on YZ plane
sketch11 = body.newObject("Sketcher::SketchObject", "Sketch010")
sketch11.AttachmentSupport = (doc.getObject("YZ_Plane"), [""])
sketch11.MapMode = "FlatFace"
sketch11.addGeometry(Part.LineSegment(App.Vector(6, -42, 0), App.Vector(6, -48, 0)), False)
sketch11.addGeometry(Part.LineSegment(App.Vector(6, -48, 0), App.Vector(3.4, -48, 0)), False)
sketch11.addGeometry(Part.LineSegment(App.Vector(3.4, -48, 0), App.Vector(3.4, -42, 0)), False)
sketch11.addGeometry(Part.LineSegment(App.Vector(3.4, -42, 0), App.Vector(6, -42, 0)), False)
sketch11.addGeometry(Part.LineSegment(App.Vector(6, -32, 0), App.Vector(6, -38, 0)), False)
sketch11.addGeometry(Part.LineSegment(App.Vector(6, -38, 0), App.Vector(3.4, -38, 0)), False)
sketch11.addGeometry(Part.LineSegment(App.Vector(3.4, -38, 0), App.Vector(3.4, -32, 0)), False)
sketch11.addGeometry(Part.LineSegment(App.Vector(3.4, -32, 0), App.Vector(6, -32, 0)), False)
sketch11.addConstraint(Sketcher.Constraint("Coincident", 0, 2, 1, 1))
sketch11.addConstraint(Sketcher.Constraint("Coincident", 1, 2, 2, 1))
sketch11.addConstraint(Sketcher.Constraint("Coincident", 2, 2, 3, 1))
sketch11.addConstraint(Sketcher.Constraint("Coincident", 3, 2, 0, 1))
sketch11.addConstraint(Sketcher.Constraint("Coincident", 4, 2, 5, 1))
sketch11.addConstraint(Sketcher.Constraint("Coincident", 5, 2, 6, 1))
sketch11.addConstraint(Sketcher.Constraint("Coincident", 6, 2, 7, 1))
sketch11.addConstraint(Sketcher.Constraint("Coincident", 7, 2, 4, 1))
sketch11.addConstraint(Sketcher.Constraint("Vertical", 0))
sketch11.addConstraint(Sketcher.Constraint("Horizontal", 1))
sketch11.addConstraint(Sketcher.Constraint("Vertical", 2))
sketch11.addConstraint(Sketcher.Constraint("Horizontal", 3))
sketch11.addConstraint(Sketcher.Constraint("Vertical", 4))
sketch11.addConstraint(Sketcher.Constraint("Horizontal", 5))
sketch11.addConstraint(Sketcher.Constraint("Vertical", 6))
sketch11.addConstraint(Sketcher.Constraint("Horizontal", 7))
sketch11.addConstraint(Sketcher.Constraint("Vertical", 3, 2, 4, 2))
sketch11.addConstraint(Sketcher.Constraint("Vertical", 2, 2, 5, 2))
sketch11.addConstraint(Sketcher.Constraint("Equal", 2, 4))
sketch11.addConstraint(Sketcher.Constraint("DistanceY", 0, 2, 0, 1, Q("6 mm")))
sketch11.addConstraint(Sketcher.Constraint("DistanceX", 1, 2, 1, 1, Q("2.6 mm")))
sketch11.addConstraint(Sketcher.Constraint("DistanceX", -1, 1, 0, 2, Q("6 mm")))
sketch11.addConstraint(Sketcher.Constraint("DistanceY", 0, 2, 4, 2, Q("10 mm")))
sketch11.addConstraint(Sketcher.Constraint("DistanceY", 0, 2, -1, 1, Q("48 mm")))
pocket10 = body.newObject("PartDesign::Pocket", "Pocket009")
pocket10.Profile = sketch11
pocket10.Length = 11
pocket10.Reversed = True

doc.recompute()
